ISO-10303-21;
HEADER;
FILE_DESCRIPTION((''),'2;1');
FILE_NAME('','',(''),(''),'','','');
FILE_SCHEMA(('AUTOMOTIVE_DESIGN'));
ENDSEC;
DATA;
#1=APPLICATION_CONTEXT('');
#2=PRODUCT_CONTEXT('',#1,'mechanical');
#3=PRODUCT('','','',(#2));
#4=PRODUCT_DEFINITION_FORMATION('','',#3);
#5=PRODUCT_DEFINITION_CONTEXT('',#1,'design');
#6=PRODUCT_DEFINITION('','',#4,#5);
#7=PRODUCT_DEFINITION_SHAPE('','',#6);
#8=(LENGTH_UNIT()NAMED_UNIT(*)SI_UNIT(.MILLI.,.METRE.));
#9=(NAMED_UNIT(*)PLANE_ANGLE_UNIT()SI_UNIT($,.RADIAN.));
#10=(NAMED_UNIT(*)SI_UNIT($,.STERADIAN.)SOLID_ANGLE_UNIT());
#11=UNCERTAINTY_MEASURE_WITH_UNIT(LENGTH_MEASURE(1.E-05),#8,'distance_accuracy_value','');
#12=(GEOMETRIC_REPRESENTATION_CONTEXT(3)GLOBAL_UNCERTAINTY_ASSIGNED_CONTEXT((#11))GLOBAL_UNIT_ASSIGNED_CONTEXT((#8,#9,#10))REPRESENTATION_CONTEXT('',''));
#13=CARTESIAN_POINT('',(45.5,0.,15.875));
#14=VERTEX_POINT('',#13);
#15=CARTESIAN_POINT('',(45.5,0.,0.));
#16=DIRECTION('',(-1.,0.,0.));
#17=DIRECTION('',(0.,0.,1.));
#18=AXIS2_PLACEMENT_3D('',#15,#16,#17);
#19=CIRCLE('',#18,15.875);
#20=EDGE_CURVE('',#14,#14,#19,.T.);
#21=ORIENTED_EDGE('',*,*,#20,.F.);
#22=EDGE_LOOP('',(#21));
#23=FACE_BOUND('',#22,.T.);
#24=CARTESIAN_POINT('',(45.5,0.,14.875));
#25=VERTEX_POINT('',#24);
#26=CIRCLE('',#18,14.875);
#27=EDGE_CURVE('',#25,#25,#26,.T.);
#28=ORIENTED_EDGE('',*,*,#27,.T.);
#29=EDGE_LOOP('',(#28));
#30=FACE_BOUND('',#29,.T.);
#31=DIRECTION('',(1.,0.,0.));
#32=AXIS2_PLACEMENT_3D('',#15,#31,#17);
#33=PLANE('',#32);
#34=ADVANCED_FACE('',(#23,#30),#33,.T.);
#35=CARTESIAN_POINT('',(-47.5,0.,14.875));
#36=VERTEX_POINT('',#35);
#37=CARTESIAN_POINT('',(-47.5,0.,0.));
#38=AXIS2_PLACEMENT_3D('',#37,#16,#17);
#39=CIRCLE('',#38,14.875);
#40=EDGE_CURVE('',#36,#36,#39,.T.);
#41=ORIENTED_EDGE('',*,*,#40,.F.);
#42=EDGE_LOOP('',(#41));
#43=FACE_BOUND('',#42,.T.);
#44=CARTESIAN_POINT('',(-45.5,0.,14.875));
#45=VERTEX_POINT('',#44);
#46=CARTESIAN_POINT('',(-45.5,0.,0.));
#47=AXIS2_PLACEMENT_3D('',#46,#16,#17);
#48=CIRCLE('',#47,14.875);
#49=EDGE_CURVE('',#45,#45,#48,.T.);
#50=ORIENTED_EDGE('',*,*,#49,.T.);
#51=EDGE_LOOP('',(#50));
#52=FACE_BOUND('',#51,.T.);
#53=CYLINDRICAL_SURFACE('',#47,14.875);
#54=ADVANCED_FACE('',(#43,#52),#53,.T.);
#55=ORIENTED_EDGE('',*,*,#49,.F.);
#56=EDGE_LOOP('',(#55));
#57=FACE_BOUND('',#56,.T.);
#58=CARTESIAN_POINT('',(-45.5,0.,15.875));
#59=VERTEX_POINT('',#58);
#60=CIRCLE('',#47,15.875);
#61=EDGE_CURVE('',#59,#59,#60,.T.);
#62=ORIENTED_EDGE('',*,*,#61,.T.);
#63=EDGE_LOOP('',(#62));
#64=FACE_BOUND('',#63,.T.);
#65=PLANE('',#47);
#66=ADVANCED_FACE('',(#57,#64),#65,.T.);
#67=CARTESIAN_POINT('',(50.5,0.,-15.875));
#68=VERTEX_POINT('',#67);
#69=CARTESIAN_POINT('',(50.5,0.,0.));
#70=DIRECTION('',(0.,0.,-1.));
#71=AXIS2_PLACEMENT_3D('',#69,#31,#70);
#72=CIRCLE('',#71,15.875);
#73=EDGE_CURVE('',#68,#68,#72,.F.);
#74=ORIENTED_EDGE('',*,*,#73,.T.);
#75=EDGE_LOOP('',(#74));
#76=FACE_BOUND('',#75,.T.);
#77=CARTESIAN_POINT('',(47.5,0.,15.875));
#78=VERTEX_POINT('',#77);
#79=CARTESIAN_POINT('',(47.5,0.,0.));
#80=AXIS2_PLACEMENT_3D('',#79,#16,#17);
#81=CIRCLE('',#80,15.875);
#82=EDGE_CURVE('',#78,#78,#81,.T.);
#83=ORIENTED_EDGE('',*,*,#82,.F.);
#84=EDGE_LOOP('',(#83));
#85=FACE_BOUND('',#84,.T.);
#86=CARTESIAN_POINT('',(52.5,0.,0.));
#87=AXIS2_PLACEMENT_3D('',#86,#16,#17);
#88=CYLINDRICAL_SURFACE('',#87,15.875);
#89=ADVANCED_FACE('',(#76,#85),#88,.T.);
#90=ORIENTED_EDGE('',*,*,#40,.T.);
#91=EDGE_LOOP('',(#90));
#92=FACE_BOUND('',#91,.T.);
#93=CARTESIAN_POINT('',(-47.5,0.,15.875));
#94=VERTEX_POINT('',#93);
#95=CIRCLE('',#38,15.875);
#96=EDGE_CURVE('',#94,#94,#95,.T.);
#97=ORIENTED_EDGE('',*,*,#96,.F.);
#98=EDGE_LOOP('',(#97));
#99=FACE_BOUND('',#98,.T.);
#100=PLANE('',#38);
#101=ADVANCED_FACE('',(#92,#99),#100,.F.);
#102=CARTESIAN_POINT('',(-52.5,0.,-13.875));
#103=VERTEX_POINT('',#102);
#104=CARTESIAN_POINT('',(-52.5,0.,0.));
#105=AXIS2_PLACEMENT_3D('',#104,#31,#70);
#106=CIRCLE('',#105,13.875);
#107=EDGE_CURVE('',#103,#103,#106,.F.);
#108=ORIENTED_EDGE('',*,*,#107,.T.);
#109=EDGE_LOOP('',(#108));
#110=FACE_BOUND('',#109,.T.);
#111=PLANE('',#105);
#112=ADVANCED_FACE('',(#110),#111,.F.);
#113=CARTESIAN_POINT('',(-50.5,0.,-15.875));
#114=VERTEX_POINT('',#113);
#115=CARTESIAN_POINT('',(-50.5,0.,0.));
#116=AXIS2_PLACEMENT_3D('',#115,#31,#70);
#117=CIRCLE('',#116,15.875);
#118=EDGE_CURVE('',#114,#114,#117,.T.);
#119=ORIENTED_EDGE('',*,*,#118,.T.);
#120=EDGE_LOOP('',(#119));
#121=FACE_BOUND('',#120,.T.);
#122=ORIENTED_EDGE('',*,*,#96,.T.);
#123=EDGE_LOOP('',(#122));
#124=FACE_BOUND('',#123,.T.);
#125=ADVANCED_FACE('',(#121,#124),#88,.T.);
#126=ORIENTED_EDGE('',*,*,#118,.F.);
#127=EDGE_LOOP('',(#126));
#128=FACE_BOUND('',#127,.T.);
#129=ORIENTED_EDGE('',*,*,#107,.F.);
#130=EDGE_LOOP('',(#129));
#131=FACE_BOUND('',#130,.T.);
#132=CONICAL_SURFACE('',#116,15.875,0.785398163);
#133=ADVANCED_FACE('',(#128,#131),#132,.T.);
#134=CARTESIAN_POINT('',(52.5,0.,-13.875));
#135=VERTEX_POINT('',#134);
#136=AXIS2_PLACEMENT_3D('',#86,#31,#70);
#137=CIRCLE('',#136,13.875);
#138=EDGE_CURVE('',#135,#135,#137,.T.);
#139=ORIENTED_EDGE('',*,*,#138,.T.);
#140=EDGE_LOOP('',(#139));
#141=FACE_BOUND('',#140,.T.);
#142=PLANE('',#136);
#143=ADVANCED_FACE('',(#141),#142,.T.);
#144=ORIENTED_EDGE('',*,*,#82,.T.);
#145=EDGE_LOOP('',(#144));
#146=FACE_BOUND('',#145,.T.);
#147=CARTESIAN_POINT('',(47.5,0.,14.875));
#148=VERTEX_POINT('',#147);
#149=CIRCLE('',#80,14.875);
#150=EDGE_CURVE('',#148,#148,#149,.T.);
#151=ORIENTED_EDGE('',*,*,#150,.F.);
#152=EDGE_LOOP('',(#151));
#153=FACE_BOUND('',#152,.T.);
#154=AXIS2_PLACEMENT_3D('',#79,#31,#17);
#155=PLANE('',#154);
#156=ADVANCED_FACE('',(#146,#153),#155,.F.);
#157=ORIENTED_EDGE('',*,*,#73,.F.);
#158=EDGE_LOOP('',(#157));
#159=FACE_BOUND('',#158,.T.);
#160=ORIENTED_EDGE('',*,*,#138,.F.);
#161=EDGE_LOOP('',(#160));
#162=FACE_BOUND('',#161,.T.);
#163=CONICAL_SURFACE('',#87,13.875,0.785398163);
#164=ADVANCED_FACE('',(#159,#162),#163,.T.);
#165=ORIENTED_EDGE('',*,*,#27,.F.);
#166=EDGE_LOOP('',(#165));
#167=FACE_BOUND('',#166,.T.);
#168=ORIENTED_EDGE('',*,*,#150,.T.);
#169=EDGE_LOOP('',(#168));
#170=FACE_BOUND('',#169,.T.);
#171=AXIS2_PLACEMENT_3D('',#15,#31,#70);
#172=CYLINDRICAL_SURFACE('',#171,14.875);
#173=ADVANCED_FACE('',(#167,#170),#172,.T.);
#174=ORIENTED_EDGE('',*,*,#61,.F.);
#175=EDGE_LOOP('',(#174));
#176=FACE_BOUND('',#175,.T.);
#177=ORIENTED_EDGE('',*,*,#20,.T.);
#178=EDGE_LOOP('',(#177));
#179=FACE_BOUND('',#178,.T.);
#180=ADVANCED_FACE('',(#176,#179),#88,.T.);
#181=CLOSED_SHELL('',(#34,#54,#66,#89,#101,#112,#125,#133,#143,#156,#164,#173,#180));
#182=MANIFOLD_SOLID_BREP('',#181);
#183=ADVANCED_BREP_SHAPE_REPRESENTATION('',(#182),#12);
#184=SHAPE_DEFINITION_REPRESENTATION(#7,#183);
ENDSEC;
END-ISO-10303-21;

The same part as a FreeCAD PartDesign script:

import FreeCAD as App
import Part
import Sketcher
from FreeCAD import Vector


def edges_at(feature, points):
    """Names of the edges that pass closest to the given points."""
    edges = feature.Shape.Edges
    near = lambda p: min(range(len(edges)), key=lambda i: edges[i].distToShape(Part.Vertex(*p))[0])
    return sorted({f"Edge{near(p) + 1}" for p in points})

doc = App.newDocument("Part")
params = doc.addObject("Spreadsheet::Sheet", "Params")
for row, (alias, value) in enumerate([
    ("sketch1_diameter", "31.75 mm"),
    ("pad1_length", "105 mm"),
    ("chamfer_size", "2 mm"),
    ("sketch2_diameter", "31.75 mm"),
    ("sketch2_diameter2", "29.75 mm"),
    ("pocket1_length", "2 mm"),
], start=1):
    params.set(f"A{row}", alias)
    params.set(f"B{row}", "=" + value)
    params.setAlias(f"B{row}", alias)

body = doc.addObject("PartDesign::Body", "Body")

# Sketch on YZ plane
sketch1 = doc.addObject("Sketcher::SketchObject", "Sketch")
body.addObject(sketch1)
sketch1.AttachmentSupport = (doc.YZ_Plane, [""])
sketch1.MapMode = "FlatFace"
sketch1.addGeometry(Part.Circle(Vector(0, 0, 0), Vector(0, 0, 1), 15.875), False)
sketch1.addConstraint(Sketcher.Constraint("Coincident", 0, 3, -1, 1))
sketch1.addConstraint(Sketcher.Constraint("Diameter", 0, 31.75))
sketch1.setExpression("Constraints[1]", "Params.sketch1_diameter")
pad1 = doc.addObject("PartDesign::Pad", "Pad")
body.addObject(pad1)
pad1.Profile = sketch1
pad1.setExpression("Length", "Params.pad1_length")
pad1.Midplane = True
doc.recompute()

chamfer = doc.addObject("PartDesign::Chamfer", "Chamfer")
body.addObject(chamfer)
chamfer.Base = (pad1, edges_at(pad1, [(-52.5, 0, 15.875), (52.5, 0, 15.875)]))
chamfer.setExpression("Size", "Params.chamfer_size")

# Sketch on YZ plane
sketch2 = doc.addObject("Sketcher::SketchObject", "Sketch001")
body.addObject(sketch2)
sketch2.AttachmentSupport = (doc.YZ_Plane, [""])
sketch2.MapMode = "FlatFace"
sketch2.AttachmentOffset = App.Placement(Vector(0, 0, -47.5), App.Rotation())
sketch2.addGeometry(Part.Circle(Vector(0, 0, 0), Vector(0, 0, 1), 15.875), False)
sketch2.addGeometry(Part.Circle(Vector(0, 0, 0), Vector(0, 0, 1), 14.875), False)
sketch2.addConstraint(Sketcher.Constraint("Coincident", 0, 3, -1, 1))
sketch2.addConstraint(Sketcher.Constraint("Coincident", 1, 3, -1, 1))
sketch2.addConstraint(Sketcher.Constraint("Diameter", 0, 31.75))
sketch2.addConstraint(Sketcher.Constraint("Diameter", 1, 29.75))
sketch2.setExpression("Constraints[2]", "Params.sketch2_diameter")
sketch2.setExpression("Constraints[3]", "Params.sketch2_diameter2")
pocket1 = doc.addObject("PartDesign::Pocket", "Pocket")
body.addObject(pocket1)
pocket1.Profile = sketch2
pocket1.setExpression("Length", "Params.pocket1_length")
pocket1.Reversed = True
doc.recompute()

mirrored = doc.addObject("PartDesign::Mirrored", "Mirrored")
body.addObject(mirrored)
mirrored.Originals = [pocket1]
mirrored.MirrorPlane = (doc.YZ_Plane, [""])
body.Tip = mirrored

doc.recompute()
